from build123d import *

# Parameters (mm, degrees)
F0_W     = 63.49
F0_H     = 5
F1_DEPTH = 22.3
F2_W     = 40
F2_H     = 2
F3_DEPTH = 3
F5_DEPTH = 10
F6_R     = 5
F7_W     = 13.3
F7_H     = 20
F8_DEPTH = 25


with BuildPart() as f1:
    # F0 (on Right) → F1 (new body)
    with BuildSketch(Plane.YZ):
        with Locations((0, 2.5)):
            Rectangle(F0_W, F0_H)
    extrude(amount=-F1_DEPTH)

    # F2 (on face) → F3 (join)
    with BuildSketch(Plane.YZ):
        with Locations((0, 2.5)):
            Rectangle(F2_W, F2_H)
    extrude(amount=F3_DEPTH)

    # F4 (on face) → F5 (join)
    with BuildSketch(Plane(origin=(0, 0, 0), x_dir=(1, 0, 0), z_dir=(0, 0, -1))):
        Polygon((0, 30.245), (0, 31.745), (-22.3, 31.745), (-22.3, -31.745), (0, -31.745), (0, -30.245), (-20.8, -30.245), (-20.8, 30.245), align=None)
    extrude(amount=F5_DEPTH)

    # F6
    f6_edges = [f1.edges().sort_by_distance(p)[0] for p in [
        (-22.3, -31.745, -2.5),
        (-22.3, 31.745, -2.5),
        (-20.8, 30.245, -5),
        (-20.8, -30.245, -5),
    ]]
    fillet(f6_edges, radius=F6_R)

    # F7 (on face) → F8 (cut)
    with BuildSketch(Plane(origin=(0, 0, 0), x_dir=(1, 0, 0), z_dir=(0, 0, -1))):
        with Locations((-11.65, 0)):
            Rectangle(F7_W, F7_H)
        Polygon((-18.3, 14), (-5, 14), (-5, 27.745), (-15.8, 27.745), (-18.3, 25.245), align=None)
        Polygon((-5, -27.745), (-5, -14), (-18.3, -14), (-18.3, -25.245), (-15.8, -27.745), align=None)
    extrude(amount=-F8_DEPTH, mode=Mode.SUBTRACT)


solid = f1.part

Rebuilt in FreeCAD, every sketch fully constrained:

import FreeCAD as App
import Part
import Sketcher


def edges_at(feature, points):
    """Names of the edges that pass closest to the given points."""
    edges = feature.Shape.Edges
    near = lambda p: min(range(len(edges)), key=lambda i: edges[i].distToShape(Part.Vertex(*p))[0])
    return sorted({f"Edge{near(p) + 1}" for p in points})


def add_polygon(sketch, points):
    """Adds a closed chain of lines whose ends are joined by coincident constraints."""
    first, n = sketch.GeometryCount, len(points)
    for a, b in zip(points, points[1:] + points[:1]):
        sketch.addGeometry(Part.LineSegment(App.Vector(*a, 0), App.Vector(*b, 0)), False)
    for i in range(n):
        sketch.addConstraint(Sketcher.Constraint("Coincident", first + i, 2, first + (i + 1) % n, 1))

doc = App.newDocument("Part")
body = doc.addObject("PartDesign::Body", "Body")

# Sketch on YZ plane
sketch1 = body.newObject("Sketcher::SketchObject", "Sketch")
sketch1.AttachmentSupport = (doc.getObject("YZ_Plane"), [""])
sketch1.MapMode = "FlatFace"
add_polygon(sketch1, [(-31.745, 5), (-31.745, 0), (31.745, 0), (31.745, 5)])  # lines 0-3
sketch1.addConstraint([
    Sketcher.Constraint("Vertical", 0),
    Sketcher.Constraint("Horizontal", 1),
    Sketcher.Constraint("Vertical", 2),
    Sketcher.Constraint("Horizontal", 3),
    Sketcher.Constraint("Symmetric", 0, 2, 1, 2, -1, 1),
    Sketcher.Constraint("DistanceY", 0, 2, 0, 1, 5.0),
    Sketcher.Constraint("DistanceX", 1, 1, 1, 2, 63.49),
])
pad1 = body.newObject("PartDesign::Pad", "Pad")
pad1.Profile = sketch1
pad1.Length = 22.3
pad1.Reversed = True

# Sketch on YZ plane
sketch2 = body.newObject("Sketcher::SketchObject", "Sketch001")
sketch2.AttachmentSupport = (doc.getObject("YZ_Plane"), [""])
sketch2.MapMode = "FlatFace"
add_polygon(sketch2, [(-20, 3.5), (-20, 1.5), (20, 1.5), (20, 3.5)])  # lines 0-3
sketch2.addConstraint([
    Sketcher.Constraint("Vertical", 0),
    Sketcher.Constraint("Horizontal", 1),
    Sketcher.Constraint("Vertical", 2),
    Sketcher.Constraint("Horizontal", 3),
    Sketcher.Constraint("DistanceX", 1, 1, 1, 2, 40.0),
    Sketcher.Constraint("DistanceY", 0, 2, 0, 1, 2.0),
    Sketcher.Constraint("DistanceX", 0, 2, -1, 1, 20.0),
    Sketcher.Constraint("DistanceY", -1, 1, 0, 2, 1.5),
])
pad2 = body.newObject("PartDesign::Pad", "Pad001")
pad2.Profile = sketch2
pad2.Length = 3

# Sketch on XY plane
sketch3 = body.newObject("Sketcher::SketchObject", "Sketch002")
sketch3.AttachmentSupport = (doc.getObject("XY_Plane"), [""])
sketch3.MapMode = "FlatFace"
add_polygon(sketch3, [(0, -30.245), (0, -31.745), (-22.3, -31.745), (-22.3, 31.745), (0, 31.745), (0, 30.245), (-20.8, 30.245), (-20.8, -30.245)])  # lines 0-7
sketch3.addConstraint([
    Sketcher.Constraint("Vertical", 0),
    Sketcher.Constraint("Horizontal", 1),
    Sketcher.Constraint("Vertical", 2),
    Sketcher.Constraint("Horizontal", 3),
    Sketcher.Constraint("Vertical", 4),
    Sketcher.Constraint("Horizontal", 5),
    Sketcher.Constraint("Vertical", 6),
    Sketcher.Constraint("Horizontal", 7),
    Sketcher.Constraint("Symmetric", 0, 2, 3, 2, -1, 1),
    Sketcher.Constraint("Symmetric", 4, 2, 7, 2, -1),
    Sketcher.Constraint("DistanceX", 1, 2, 1, 1, 22.3),
    Sketcher.Constraint("DistanceX", 5, 2, 5, 1, 20.8),
    Sketcher.Constraint("DistanceY", 0, 2, 0, 1, 1.5),
    Sketcher.Constraint("DistanceY", 2, 1, 2, 2, 63.49),
])
pad3 = body.newObject("PartDesign::Pad", "Pad002")
pad3.Profile = sketch3
pad3.Length = 10
pad3.Reversed = True
doc.recompute()

fillet = body.newObject("PartDesign::Fillet", "Fillet")
fillet.Base = (pad3, edges_at(pad3, [
    (-22.3, -31.745, -2.5),
    (-22.3, 31.745, -2.5),
    (-20.8, 30.245, -5),
    (-20.8, -30.245, -5),
]))
fillet.Radius = 5

# Sketch on XY plane
sketch4 = body.newObject("Sketcher::SketchObject", "Sketch003")
sketch4.AttachmentSupport = (doc.getObject("XY_Plane"), [""])
sketch4.MapMode = "FlatFace"
add_polygon(sketch4, [(-18.3, -10), (-18.3, 10), (-5, 10), (-5, -10)])  # lines 0-3
add_polygon(sketch4, [(-18.3, -14), (-5, -14), (-5, -27.745), (-15.8, -27.745), (-18.3, -25.245)])  # lines 4-8
add_polygon(sketch4, [(-5, 27.745), (-5, 14), (-18.3, 14), (-18.3, 25.245), (-15.8, 27.745)])  # lines 9-13
sketch4.addConstraint([
    Sketcher.Constraint("Vertical", 0),
    Sketcher.Constraint("Horizontal", 1),
    Sketcher.Constraint("Vertical", 2),
    Sketcher.Constraint("Horizontal", 3),
    Sketcher.Constraint("Horizontal", 4),
    Sketcher.Constraint("Vertical", 5),
    Sketcher.Constraint("Horizontal", 6),
    Sketcher.Constraint("Vertical", 8),
    Sketcher.Constraint("Vertical", 9),
    Sketcher.Constraint("Horizontal", 10),
    Sketcher.Constraint("Vertical", 11),
    Sketcher.Constraint("Horizontal", 13),
    Sketcher.Constraint("Symmetric", 4, 2, 9, 2, -1),
    Sketcher.Constraint("Symmetric", 7, 2, 11, 2, -1),
    Sketcher.Constraint("Symmetric", 6, 2, 12, 2, -1),
    Sketcher.Constraint("Perpendicular", 7, 12),
    Sketcher.Constraint("Vertical", 2, 2, 4, 2),
    Sketcher.Constraint("Vertical", 3, 2, 7, 2),
    Sketcher.Constraint("DistanceY", 0, 1, 0, 2, 20.0),
    Sketcher.Constraint("DistanceX", 1, 1, 1, 2, 13.3),
    Sketcher.Constraint("DistanceX", 6, 2, 6, 1, 10.8),
    Sketcher.Constraint("DistanceY", -1, 1, 0, 2, 10.0),
    Sketcher.Constraint("DistanceX", 1, 2, -1, 1, 5.0),
    Sketcher.Constraint("DistanceY", 4, 2, -1, 1, 14.0),
    Sketcher.Constraint("DistanceY", 5, 2, 5, 1, 13.745),
])
pocket1 = body.newObject("PartDesign::Pocket", "Pocket")
pocket1.Profile = sketch4
pocket1.Length = 25
pocket1.Reversed = True

doc.recompute()
